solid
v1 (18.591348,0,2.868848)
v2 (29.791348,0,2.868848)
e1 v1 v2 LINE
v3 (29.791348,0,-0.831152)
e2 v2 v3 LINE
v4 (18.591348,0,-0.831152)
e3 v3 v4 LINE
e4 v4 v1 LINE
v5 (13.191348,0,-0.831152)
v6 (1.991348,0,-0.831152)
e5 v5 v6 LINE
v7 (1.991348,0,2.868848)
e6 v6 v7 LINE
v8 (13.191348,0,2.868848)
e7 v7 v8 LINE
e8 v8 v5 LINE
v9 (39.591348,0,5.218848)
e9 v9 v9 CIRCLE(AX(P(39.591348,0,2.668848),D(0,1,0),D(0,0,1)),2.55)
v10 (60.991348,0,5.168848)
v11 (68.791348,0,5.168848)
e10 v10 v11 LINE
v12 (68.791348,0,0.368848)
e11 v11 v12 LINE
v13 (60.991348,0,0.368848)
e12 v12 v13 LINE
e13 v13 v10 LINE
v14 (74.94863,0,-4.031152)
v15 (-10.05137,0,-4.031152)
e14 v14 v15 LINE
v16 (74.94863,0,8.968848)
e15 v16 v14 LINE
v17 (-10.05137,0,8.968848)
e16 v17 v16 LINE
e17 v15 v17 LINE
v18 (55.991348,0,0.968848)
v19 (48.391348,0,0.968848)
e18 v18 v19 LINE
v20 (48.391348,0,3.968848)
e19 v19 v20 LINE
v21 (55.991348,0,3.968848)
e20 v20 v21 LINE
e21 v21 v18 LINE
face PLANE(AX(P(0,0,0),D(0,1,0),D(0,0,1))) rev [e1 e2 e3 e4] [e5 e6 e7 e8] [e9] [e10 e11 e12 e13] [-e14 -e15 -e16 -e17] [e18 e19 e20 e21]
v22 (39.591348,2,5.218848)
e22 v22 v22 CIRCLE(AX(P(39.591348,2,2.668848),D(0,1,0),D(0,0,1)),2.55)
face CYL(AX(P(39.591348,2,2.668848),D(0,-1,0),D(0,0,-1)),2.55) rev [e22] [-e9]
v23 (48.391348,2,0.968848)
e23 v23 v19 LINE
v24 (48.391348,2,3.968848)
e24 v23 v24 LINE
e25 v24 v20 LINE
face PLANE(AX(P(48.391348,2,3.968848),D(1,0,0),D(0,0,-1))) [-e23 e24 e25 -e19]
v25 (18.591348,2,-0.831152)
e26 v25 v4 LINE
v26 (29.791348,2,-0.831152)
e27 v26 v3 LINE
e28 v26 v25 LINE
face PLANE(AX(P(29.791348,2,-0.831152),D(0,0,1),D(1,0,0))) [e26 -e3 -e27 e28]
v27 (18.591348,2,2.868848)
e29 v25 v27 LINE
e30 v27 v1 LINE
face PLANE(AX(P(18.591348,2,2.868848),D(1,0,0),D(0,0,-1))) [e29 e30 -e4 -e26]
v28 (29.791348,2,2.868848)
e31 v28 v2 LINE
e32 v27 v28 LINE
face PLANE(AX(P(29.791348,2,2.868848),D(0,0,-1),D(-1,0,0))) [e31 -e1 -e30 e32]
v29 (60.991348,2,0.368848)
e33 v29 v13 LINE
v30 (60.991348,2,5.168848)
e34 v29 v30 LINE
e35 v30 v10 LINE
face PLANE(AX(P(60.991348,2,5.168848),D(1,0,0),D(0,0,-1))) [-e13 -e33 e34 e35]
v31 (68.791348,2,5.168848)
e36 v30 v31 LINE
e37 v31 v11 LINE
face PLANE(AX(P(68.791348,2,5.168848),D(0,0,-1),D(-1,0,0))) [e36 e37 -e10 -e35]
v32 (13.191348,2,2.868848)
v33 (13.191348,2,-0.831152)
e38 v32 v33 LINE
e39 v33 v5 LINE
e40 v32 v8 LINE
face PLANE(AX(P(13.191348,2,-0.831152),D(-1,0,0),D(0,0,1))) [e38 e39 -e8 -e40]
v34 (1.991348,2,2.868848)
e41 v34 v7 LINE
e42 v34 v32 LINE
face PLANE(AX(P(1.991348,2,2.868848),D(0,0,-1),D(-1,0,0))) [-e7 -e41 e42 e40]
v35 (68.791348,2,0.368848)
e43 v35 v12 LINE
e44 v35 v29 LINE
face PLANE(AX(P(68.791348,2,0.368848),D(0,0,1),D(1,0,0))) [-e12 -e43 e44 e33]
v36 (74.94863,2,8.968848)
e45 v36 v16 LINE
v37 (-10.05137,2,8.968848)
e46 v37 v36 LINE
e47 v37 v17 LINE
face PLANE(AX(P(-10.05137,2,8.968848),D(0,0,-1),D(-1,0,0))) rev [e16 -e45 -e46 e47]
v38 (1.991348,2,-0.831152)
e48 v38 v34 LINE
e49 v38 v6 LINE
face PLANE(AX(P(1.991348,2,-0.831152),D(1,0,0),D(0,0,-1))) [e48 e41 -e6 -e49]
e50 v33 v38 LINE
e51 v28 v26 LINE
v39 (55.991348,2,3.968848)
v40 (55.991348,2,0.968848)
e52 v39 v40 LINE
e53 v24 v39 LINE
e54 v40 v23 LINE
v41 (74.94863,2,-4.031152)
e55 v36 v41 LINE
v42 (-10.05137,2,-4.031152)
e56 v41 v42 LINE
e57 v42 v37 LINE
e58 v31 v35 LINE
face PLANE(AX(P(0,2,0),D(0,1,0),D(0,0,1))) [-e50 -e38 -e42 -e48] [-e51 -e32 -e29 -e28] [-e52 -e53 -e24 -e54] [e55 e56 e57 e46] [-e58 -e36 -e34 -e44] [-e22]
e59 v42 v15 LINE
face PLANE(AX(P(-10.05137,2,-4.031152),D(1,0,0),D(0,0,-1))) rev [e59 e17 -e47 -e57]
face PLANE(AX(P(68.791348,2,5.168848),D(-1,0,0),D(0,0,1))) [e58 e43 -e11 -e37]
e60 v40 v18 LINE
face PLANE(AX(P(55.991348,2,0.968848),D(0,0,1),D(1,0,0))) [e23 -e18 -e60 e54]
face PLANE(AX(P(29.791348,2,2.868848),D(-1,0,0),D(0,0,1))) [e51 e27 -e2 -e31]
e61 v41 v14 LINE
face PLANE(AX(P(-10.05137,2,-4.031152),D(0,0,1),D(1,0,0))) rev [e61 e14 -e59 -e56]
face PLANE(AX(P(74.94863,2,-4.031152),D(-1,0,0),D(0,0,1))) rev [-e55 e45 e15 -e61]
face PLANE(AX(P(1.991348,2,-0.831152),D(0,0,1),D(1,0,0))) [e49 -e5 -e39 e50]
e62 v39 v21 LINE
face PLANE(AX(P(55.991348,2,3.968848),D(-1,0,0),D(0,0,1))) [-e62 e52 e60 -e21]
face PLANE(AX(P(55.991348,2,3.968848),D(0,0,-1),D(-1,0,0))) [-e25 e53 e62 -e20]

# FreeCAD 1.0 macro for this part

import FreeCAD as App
import Part
import Sketcher

V = App.Vector

doc = App.newDocument("Part")
body = doc.addObject("PartDesign::Body", "Body")

# Sketch on XZ plane
sketch1 = body.newObject("Sketcher::SketchObject", "Sketch")
sketch1.AttachmentSupport = (doc.getObject("XZ_Plane"), [""])
sketch1.MapMode = "FlatFace"
sketch1.addGeometry([
    Part.LineSegment(V(-10.1, -4, 0), V(-10.1, 9, 0)),  # 0
    Part.LineSegment(V(-10.1, 9, 0), V(74.9, 9, 0)),  # 1
    Part.LineSegment(V(74.9, 9, 0), V(74.9, -4, 0)),  # 2
    Part.LineSegment(V(74.9, -4, 0), V(-10.1, -4, 0)),  # 3
    Part.Circle(V(39.6, 2.7, 0), V(0, 0, 1), 2.5),  # 4
    Part.LineSegment(V(56, 4, 0), V(48.4, 4, 0)),  # 5
    Part.LineSegment(V(48.4, 4, 0), V(48.4, 1, 0)),  # 6
    Part.LineSegment(V(48.4, 1, 0), V(56, 1, 0)),  # 7
    Part.LineSegment(V(56, 1, 0), V(56, 4, 0)),  # 8
    Part.LineSegment(V(68.8, 5.2, 0), V(61, 5.2, 0)),  # 9
    Part.LineSegment(V(61, 5.2, 0), V(61, 0.4, 0)),  # 10
    Part.LineSegment(V(61, 0.4, 0), V(68.8, 0.4, 0)),  # 11
    Part.LineSegment(V(68.8, 0.4, 0), V(68.8, 5.2, 0)),  # 12
    Part.LineSegment(V(13.2, 2.9, 0), V(2, 2.9, 0)),  # 13
    Part.LineSegment(V(2, 2.9, 0), V(2, -0.8, 0)),  # 14
    Part.LineSegment(V(2, -0.8, 0), V(13.2, -0.8, 0)),  # 15
    Part.LineSegment(V(13.2, -0.8, 0), V(13.2, 2.9, 0)),  # 16
    Part.LineSegment(V(29.8, 2.9, 0), V(18.6, 2.9, 0)),  # 17
    Part.LineSegment(V(18.6, 2.9, 0), V(18.6, -0.8, 0)),  # 18
    Part.LineSegment(V(18.6, -0.8, 0), V(29.8, -0.8, 0)),  # 19
    Part.LineSegment(V(29.8, -0.8, 0), V(29.8, 2.9, 0)),  # 20
], False)
sketch1.addConstraint([
    Sketcher.Constraint("Coincident", 0, 2, 1, 1),
    Sketcher.Constraint("Coincident", 1, 2, 2, 1),
    Sketcher.Constraint("Coincident", 2, 2, 3, 1),
    Sketcher.Constraint("Coincident", 3, 2, 0, 1),
    Sketcher.Constraint("Coincident", 5, 2, 6, 1),
    Sketcher.Constraint("Coincident", 6, 2, 7, 1),
    Sketcher.Constraint("Coincident", 7, 2, 8, 1),
    Sketcher.Constraint("Coincident", 8, 2, 5, 1),
    Sketcher.Constraint("Coincident", 9, 2, 10, 1),
    Sketcher.Constraint("Coincident", 10, 2, 11, 1),
    Sketcher.Constraint("Coincident", 11, 2, 12, 1),
    Sketcher.Constraint("Coincident", 12, 2, 9, 1),
    Sketcher.Constraint("Coincident", 13, 2, 14, 1),
    Sketcher.Constraint("Coincident", 14, 2, 15, 1),
    Sketcher.Constraint("Coincident", 15, 2, 16, 1),
    Sketcher.Constraint("Coincident", 16, 2, 13, 1),
    Sketcher.Constraint("Coincident", 17, 2, 18, 1),
    Sketcher.Constraint("Coincident", 18, 2, 19, 1),
    Sketcher.Constraint("Coincident", 19, 2, 20, 1),
    Sketcher.Constraint("Coincident", 20, 2, 17, 1),
    Sketcher.Constraint("Vertical", 0),
    Sketcher.Constraint("Horizontal", 1),
    Sketcher.Constraint("Vertical", 2),
    Sketcher.Constraint("Horizontal", 3),
    Sketcher.Constraint("Horizontal", 5),
    Sketcher.Constraint("Vertical", 6),
    Sketcher.Constraint("Horizontal", 7),
    Sketcher.Constraint("Vertical", 8),
    Sketcher.Constraint("Horizontal", 9),
    Sketcher.Constraint("Vertical", 10),
    Sketcher.Constraint("Horizontal", 11),
    Sketcher.Constraint("Vertical", 12),
    Sketcher.Constraint("Horizontal", 13),
    Sketcher.Constraint("Vertical", 14),
    Sketcher.Constraint("Horizontal", 15),
    Sketcher.Constraint("Vertical", 16),
    Sketcher.Constraint("Horizontal", 17),
    Sketcher.Constraint("Vertical", 18),
    Sketcher.Constraint("Horizontal", 19),
    Sketcher.Constraint("Vertical", 20),
    Sketcher.Constraint("Horizontal", 16, 2, 17, 2),
    Sketcher.Constraint("Horizontal", 15, 2, 18, 2),
    Sketcher.Constraint("Equal", 15, 17),
    Sketcher.Constraint("Diameter", 4, 5.1),
    Sketcher.Constraint("DistanceX", 1, 1, 1, 2, 85.0),
    Sketcher.Constraint("DistanceY", 0, 1, 0, 2, 13.0),
    Sketcher.Constraint("DistanceY", 6, 2, 6, 1, 3.0),
    Sketcher.Constraint("DistanceX", 5, 2, 5, 1, 7.6),
    Sketcher.Constraint("DistanceX", 9, 2, 9, 1, 7.8),
    Sketcher.Constraint("DistanceX", 13, 2, 13, 1, 11.2),
    Sketcher.Constraint("DistanceY", 10, 2, 10, 1, 4.8),
    Sketcher.Constraint("DistanceY", 14, 2, 14, 1, 3.7),
    Sketcher.Constraint("DistanceY", 5, 2, 1, 2, 5.0),
    Sketcher.Constraint("DistanceX", 8, 2, 9, 2, 5.0),
    Sketcher.Constraint("DistanceX", 17, 2, 4, 3, 21.0),
    Sketcher.Constraint("DistanceY", 4, 3, 0, 2, 6.3),
    Sketcher.Constraint("DistanceX", 4, 3, 5, 2, 8.8),
    Sketcher.Constraint("DistanceY", 8, 2, 9, 2, 1.2),
    Sketcher.Constraint("DistanceY", 13, 2, 0, 2, 6.1),
    Sketcher.Constraint("DistanceX", 13, 2, 4, 3, 37.6),
    Sketcher.Constraint("DistanceX", -1, 1, 4, 3, 39.591348),
    Sketcher.Constraint("DistanceY", -1, 1, 4, 3, 2.668848),
    Sketcher.Constraint("DistanceX", 0, 2, -1, 1, 10.05137),
])
pad1 = body.newObject("PartDesign::Pad", "Pad")
pad1.Profile = sketch1
pad1.Length = 2
pad1.Reversed = True

doc.recompute()
